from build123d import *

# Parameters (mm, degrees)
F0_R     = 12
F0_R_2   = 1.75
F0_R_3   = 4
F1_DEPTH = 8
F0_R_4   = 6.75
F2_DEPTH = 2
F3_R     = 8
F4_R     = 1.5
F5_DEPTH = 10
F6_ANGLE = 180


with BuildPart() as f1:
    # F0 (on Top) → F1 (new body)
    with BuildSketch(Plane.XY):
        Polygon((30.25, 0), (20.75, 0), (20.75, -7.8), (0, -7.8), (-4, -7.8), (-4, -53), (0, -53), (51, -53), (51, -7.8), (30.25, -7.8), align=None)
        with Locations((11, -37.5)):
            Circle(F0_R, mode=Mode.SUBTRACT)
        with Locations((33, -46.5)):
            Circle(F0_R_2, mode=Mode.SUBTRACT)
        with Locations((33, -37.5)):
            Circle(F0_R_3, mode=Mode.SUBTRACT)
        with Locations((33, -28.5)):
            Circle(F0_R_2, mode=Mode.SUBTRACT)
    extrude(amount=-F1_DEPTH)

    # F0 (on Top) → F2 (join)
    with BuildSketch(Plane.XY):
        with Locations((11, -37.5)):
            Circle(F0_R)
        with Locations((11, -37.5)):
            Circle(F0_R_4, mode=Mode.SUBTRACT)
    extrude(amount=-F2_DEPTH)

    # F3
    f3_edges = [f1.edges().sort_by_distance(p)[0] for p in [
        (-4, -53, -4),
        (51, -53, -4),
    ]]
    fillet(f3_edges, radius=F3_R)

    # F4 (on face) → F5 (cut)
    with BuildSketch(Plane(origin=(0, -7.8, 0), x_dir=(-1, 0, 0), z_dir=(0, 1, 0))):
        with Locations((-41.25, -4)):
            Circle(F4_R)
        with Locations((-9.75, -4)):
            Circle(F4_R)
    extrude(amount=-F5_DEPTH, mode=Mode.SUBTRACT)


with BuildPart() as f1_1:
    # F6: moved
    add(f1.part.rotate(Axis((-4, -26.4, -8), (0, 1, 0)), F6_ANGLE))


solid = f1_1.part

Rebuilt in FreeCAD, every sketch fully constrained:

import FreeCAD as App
import Part
import Sketcher
Q = App.Units.Quantity


def edges_at(feature, points):
    """Names of the edges that pass closest to the given points."""
    edges = feature.Shape.Edges
    near = lambda p: min(range(len(edges)), key=lambda i: edges[i].distToShape(Part.Vertex(*p))[0])
    return sorted({f"Edge{near(p) + 1}" for p in points})


def add_polygon(sketch, points):
    """Adds a closed chain of lines whose ends are joined by coincident constraints."""
    first, n = sketch.GeometryCount, len(points)
    for a, b in zip(points, points[1:] + points[:1]):
        sketch.addGeometry(Part.LineSegment(App.Vector(*a, 0), App.Vector(*b, 0)), False)
    for i in range(n):
        sketch.addConstraint(Sketcher.Constraint("Coincident", first + i, 2, first + (i + 1) % n, 1))

doc = App.newDocument("Part")
body = doc.addObject("PartDesign::Body", "Body")

# Sketch on XY plane
sketch1 = body.newObject("Sketcher::SketchObject", "Sketch")
sketch1.AttachmentSupport = (doc.getObject("XY_Plane"), [""])
sketch1.MapMode = "FlatFace"
add_polygon(sketch1, [(30.25, 0), (20.75, 0), (20.75, -7.8), (-4, -7.8), (-4, -53), (51, -53), (51, -7.8), (30.25, -7.8)])  # lines 0-7
sketch1.addGeometry(Part.Circle(App.Vector(33, -46.5, 0), App.Vector(0, 0, 1), 1.75), False)  # 8
sketch1.addGeometry(Part.Circle(App.Vector(11, -37.5, 0), App.Vector(0, 0, 1), 12), False)  # 9
sketch1.addGeometry(Part.Circle(App.Vector(33, -37.5, 0), App.Vector(0, 0, 1), 4), False)  # 10
sketch1.addGeometry(Part.Circle(App.Vector(33, -28.5, 0), App.Vector(0, 0, 1), 1.75), False)  # 11
sketch1.addConstraint([
    Sketcher.Constraint("Horizontal", 0),
    Sketcher.Constraint("Vertical", 1),
    Sketcher.Constraint("Horizontal", 2),
    Sketcher.Constraint("Vertical", 3),
    Sketcher.Constraint("Horizontal", 4),
    Sketcher.Constraint("Vertical", 5),
    Sketcher.Constraint("Horizontal", 6),
    Sketcher.Constraint("Vertical", 7),
    Sketcher.Constraint("Equal", 8, 11),
    Sketcher.Constraint("PointOnObject", 0, 2, -1),
    Sketcher.Constraint("Horizontal", 9, 3, 10, 3),
    Sketcher.Constraint("Horizontal", 2, 2, 5, 2),
    Sketcher.Constraint("Vertical", 8, 3, 10, 3),
    Sketcher.Constraint("Vertical", 10, 3, 11, 3),
    Sketcher.Constraint("Diameter", 9, Q("24 mm")),
    Sketcher.Constraint("Diameter", 10, Q("8 mm")),
    Sketcher.Constraint("Diameter", 8, Q("3.5 mm")),
    Sketcher.Constraint("DistanceX", 4, 1, 4, 2, Q("55 mm")),
    Sketcher.Constraint("DistanceX", 0, 2, 0, 1, Q("9.5 mm")),
    Sketcher.Constraint("DistanceY", 1, 2, 1, 1, Q("7.8 mm")),
    Sketcher.Constraint("DistanceY", 3, 2, 3, 1, Q("45.2 mm")),
    Sketcher.Constraint("DistanceX", -1, 1, 8, 3, Q("33 mm")),
    Sketcher.Constraint("DistanceX", -1, 1, 9, 3, Q("11 mm")),
    Sketcher.Constraint("DistanceX", 2, 2, -1, 1, Q("4 mm")),
    Sketcher.Constraint("DistanceY", 8, 3, 9, 3, Q("9 mm")),
    Sketcher.Constraint("DistanceY", 10, 3, 11, 3, Q("9 mm")),
    Sketcher.Constraint("DistanceX", 2, 2, 2, 1, Q("24.75 mm")),
    Sketcher.Constraint("DistanceY", 8, 3, -1, 1, Q("46.5 mm")),
])
pad1 = body.newObject("PartDesign::Pad", "Pad")
pad1.Profile = sketch1
pad1.Length = 8
pad1.Reversed = True

# Sketch on XY plane
sketch2 = body.newObject("Sketcher::SketchObject", "Sketch001")
sketch2.AttachmentSupport = (doc.getObject("XY_Plane"), [""])
sketch2.MapMode = "FlatFace"
sketch2.addGeometry([
    Part.Circle(App.Vector(11, -37.5, 0), App.Vector(0, 0, 1), 12),
    Part.Circle(App.Vector(11, -37.5, 0), App.Vector(0, 0, 1), 6.75),
], False)
sketch2.addConstraint([
    Sketcher.Constraint("Coincident", 1, 3, 0, 3),
    Sketcher.Constraint("Diameter", 0, Q("24 mm")),
    Sketcher.Constraint("Diameter", 1, Q("13.5 mm")),
    Sketcher.Constraint("DistanceX", -1, 1, 0, 3, Q("11 mm")),
    Sketcher.Constraint("DistanceY", 0, 3, -1, 1, Q("37.5 mm")),
])
pad2 = body.newObject("PartDesign::Pad", "Pad001")
pad2.Profile = sketch2
pad2.Length = 2
pad2.Reversed = True
doc.recompute()

fillet = body.newObject("PartDesign::Fillet", "Fillet")
fillet.Base = (pad2, edges_at(pad2, [(-4, -53, -4), (51, -53, -4)]))
fillet.Radius = 8

# Sketch on XZ plane
sketch3 = body.newObject("Sketcher::SketchObject", "Sketch002")
sketch3.AttachmentSupport = (doc.getObject("XZ_Plane"), [""])
sketch3.MapMode = "FlatFace"
sketch3.AttachmentOffset = App.Placement(App.Vector(0, 0, 7.8), App.Rotation())
sketch3.addGeometry([
    Part.Circle(App.Vector(41.25, -4, 0), App.Vector(0, 0, 1), 1.5),
    Part.Circle(App.Vector(9.75, -4, 0), App.Vector(0, 0, 1), 1.5),
], False)
sketch3.addConstraint([
    Sketcher.Constraint("Equal", 0, 1),
    Sketcher.Constraint("Horizontal", 0, 3, 1, 3),
    Sketcher.Constraint("Diameter", 0, Q("3 mm")),
    Sketcher.Constraint("DistanceY", 0, 3, -1, 1, Q("4 mm")),
    Sketcher.Constraint("DistanceX", 1, 3, 0, 3, Q("31.5 mm")),
    Sketcher.Constraint("DistanceX", -1, 1, 0, 3, Q("41.25 mm")),
])
pocket1 = body.newObject("PartDesign::Pocket", "Pocket")
pocket1.Profile = sketch3
pocket1.Length = 10
pocket1.Reversed = True
body2 = doc.addObject("PartDesign::Body", "Body001")
doc.recompute()

body.Placement = App.Placement(App.Vector(-8, 0, -16), App.Rotation(App.Vector(0, 1, 0), 180))
boolean = body2.newObject("PartDesign::Boolean", "Boolean")
boolean.Type = "Fuse"
boolean.addObjects([body])

doc.recompute()
